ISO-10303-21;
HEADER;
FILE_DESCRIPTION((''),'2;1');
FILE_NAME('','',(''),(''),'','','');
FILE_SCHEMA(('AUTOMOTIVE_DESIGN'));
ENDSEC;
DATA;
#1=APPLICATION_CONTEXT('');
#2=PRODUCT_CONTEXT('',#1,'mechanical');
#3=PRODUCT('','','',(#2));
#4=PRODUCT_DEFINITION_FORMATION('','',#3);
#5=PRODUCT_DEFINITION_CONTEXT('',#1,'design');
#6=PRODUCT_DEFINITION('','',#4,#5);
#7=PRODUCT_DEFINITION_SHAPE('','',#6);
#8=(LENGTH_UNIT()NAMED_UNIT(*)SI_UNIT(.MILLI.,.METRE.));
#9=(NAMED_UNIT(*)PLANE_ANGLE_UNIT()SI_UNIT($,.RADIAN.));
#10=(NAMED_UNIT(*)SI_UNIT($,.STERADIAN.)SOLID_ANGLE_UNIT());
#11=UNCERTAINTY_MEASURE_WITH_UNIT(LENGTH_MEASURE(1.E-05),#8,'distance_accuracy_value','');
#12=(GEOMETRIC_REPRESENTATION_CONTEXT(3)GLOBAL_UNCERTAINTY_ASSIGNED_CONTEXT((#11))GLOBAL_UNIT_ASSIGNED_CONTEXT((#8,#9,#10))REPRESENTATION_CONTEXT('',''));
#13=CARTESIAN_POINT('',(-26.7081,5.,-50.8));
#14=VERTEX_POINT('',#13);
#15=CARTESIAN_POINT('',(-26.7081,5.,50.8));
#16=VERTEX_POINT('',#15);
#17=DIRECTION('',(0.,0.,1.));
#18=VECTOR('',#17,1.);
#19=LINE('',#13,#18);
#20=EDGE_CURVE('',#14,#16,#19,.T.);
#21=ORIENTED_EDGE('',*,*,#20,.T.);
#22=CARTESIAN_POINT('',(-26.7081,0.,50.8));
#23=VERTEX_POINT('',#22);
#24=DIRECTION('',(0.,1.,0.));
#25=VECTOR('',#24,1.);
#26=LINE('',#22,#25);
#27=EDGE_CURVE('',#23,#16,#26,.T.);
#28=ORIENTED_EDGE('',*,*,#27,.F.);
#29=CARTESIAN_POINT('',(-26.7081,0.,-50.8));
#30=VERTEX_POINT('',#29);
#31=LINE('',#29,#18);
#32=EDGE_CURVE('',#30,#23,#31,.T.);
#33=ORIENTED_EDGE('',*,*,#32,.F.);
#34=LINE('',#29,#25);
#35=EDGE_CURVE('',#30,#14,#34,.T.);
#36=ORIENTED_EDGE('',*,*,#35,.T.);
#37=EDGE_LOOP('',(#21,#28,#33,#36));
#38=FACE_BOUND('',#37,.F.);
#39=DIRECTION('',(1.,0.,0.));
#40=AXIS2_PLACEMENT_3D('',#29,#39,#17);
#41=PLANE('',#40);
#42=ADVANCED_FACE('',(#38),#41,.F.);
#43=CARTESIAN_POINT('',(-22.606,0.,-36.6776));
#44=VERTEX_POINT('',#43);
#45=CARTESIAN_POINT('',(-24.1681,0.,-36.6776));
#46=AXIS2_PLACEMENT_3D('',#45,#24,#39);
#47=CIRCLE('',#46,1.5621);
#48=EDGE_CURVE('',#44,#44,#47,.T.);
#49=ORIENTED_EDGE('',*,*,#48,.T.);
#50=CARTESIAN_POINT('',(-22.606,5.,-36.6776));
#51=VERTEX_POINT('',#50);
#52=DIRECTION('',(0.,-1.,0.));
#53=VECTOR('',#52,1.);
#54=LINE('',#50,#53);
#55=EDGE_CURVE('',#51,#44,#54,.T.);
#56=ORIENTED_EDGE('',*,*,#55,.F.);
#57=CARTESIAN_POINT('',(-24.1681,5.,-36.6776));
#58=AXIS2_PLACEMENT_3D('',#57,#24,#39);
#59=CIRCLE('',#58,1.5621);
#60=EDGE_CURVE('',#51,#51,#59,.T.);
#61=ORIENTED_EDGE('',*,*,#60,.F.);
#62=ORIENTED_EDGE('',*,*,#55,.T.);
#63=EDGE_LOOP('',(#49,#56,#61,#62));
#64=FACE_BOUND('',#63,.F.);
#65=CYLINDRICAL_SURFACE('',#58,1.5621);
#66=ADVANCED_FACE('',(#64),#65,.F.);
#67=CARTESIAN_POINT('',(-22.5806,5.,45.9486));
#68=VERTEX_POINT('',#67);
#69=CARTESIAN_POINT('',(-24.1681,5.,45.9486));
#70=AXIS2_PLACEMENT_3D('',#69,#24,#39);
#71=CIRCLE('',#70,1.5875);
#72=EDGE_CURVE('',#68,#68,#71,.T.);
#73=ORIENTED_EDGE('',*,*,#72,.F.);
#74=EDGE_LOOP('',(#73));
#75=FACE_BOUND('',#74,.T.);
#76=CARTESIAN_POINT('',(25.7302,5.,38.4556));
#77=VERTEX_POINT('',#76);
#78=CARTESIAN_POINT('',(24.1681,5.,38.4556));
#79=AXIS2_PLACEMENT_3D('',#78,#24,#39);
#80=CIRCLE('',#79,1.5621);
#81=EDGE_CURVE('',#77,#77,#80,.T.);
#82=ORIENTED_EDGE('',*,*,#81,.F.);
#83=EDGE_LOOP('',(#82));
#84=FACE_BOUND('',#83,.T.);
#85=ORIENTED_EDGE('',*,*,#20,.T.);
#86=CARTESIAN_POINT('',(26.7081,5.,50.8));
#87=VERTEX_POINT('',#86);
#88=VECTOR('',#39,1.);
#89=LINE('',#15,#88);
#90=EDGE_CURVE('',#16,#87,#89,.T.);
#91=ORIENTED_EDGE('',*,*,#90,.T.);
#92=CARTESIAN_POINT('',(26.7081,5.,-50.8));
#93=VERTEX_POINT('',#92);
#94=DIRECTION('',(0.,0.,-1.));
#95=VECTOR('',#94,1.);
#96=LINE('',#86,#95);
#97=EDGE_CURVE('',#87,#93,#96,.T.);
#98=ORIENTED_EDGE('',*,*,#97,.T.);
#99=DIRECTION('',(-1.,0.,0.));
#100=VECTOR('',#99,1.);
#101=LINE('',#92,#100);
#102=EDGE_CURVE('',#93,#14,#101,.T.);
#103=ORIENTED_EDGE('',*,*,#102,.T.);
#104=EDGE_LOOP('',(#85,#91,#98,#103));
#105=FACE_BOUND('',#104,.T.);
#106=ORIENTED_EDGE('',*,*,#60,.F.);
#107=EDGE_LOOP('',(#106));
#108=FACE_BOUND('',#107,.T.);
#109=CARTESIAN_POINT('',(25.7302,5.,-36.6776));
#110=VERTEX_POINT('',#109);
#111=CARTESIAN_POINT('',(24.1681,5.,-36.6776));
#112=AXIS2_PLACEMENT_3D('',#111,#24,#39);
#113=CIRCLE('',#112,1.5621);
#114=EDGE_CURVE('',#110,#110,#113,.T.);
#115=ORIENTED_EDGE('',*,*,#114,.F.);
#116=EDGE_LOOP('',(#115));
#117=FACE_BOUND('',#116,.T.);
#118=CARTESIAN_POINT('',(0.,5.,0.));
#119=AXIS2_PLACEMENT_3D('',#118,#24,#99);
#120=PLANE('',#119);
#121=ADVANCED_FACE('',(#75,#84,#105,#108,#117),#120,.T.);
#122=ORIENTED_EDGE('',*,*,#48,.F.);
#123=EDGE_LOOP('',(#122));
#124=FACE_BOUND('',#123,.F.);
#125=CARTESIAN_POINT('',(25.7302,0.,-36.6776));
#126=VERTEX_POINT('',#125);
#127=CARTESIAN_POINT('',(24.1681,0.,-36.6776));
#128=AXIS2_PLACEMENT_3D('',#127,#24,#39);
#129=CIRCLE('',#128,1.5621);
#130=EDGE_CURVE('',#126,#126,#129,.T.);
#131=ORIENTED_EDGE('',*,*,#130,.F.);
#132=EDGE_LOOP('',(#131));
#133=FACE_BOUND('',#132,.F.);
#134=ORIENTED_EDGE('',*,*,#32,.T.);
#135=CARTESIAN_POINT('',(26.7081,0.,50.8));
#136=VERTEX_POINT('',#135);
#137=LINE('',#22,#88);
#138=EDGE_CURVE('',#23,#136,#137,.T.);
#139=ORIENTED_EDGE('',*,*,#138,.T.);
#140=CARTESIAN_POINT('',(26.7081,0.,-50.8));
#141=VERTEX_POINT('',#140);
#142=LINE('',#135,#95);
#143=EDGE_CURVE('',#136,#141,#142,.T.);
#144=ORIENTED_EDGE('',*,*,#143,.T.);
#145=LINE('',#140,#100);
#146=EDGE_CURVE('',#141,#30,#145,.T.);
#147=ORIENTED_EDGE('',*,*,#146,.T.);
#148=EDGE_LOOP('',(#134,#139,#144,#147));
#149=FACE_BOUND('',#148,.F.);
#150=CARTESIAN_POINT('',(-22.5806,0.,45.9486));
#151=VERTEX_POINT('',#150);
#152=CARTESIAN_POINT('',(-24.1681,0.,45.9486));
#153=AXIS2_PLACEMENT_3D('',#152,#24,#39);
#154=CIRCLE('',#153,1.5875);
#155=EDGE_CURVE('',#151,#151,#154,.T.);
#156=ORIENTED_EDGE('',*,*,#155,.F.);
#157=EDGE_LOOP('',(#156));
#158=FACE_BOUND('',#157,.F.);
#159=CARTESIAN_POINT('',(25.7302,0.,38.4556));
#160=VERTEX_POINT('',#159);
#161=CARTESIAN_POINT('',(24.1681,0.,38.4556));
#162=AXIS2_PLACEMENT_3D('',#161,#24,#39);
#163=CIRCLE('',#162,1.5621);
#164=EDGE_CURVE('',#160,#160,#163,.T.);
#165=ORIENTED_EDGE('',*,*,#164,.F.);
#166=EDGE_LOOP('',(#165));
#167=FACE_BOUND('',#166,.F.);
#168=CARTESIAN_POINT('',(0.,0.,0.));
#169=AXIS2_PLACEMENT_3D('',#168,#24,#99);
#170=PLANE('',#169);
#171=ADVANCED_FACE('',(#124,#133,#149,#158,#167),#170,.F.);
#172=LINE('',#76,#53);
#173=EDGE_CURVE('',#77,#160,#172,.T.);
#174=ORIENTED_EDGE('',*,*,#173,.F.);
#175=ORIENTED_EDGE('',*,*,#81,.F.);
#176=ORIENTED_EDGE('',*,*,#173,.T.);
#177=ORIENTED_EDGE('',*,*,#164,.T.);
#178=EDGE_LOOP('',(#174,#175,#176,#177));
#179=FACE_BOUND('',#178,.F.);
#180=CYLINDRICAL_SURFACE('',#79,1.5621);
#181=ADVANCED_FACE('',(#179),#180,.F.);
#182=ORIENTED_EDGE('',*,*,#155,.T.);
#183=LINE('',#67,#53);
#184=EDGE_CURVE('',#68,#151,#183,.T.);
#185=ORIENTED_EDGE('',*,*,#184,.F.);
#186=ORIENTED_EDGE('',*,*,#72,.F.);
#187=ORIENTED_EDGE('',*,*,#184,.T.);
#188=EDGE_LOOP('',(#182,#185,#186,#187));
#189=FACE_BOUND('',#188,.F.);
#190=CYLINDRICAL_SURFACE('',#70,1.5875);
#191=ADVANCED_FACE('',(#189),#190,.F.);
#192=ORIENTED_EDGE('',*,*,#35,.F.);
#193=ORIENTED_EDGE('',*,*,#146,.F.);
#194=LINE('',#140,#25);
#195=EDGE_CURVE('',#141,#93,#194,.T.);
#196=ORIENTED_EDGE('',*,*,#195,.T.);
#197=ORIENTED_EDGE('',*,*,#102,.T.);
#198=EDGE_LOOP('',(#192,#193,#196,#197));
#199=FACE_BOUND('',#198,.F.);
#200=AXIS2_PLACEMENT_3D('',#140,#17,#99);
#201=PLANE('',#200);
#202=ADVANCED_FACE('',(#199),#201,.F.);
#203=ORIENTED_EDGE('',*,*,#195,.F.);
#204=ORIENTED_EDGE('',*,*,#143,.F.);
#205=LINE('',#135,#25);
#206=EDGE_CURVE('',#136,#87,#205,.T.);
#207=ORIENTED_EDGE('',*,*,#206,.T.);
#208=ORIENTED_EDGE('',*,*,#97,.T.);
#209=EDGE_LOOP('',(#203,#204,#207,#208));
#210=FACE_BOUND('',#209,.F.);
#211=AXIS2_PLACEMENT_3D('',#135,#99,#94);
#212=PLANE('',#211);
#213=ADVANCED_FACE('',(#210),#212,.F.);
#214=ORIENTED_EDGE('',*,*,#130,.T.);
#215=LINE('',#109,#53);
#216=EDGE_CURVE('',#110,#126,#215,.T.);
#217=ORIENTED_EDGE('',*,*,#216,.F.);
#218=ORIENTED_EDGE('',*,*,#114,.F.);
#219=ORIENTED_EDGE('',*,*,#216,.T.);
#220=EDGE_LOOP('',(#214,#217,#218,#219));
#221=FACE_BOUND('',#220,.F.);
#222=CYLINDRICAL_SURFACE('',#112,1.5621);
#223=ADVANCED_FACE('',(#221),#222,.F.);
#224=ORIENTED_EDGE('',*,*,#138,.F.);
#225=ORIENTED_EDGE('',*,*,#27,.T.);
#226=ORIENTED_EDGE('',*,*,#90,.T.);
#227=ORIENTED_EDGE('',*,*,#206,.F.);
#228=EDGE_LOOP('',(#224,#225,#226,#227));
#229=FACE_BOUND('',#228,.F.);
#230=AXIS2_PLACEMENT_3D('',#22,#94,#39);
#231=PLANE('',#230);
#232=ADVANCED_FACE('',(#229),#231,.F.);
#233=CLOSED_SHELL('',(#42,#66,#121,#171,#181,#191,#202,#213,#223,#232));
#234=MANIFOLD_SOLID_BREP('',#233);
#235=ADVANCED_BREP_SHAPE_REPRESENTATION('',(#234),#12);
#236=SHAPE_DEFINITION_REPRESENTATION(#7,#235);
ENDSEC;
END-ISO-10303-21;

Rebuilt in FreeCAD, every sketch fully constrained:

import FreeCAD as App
import Part
import Sketcher
from FreeCAD import Vector
Q = App.Units.Quantity


def add_polygon(sketch, points):
    """Adds a closed chain of lines whose ends are joined by coincident constraints."""
    first, n = sketch.GeometryCount, len(points)
    for a, b in zip(points, points[1:] + points[:1]):
        sketch.addGeometry(Part.LineSegment(App.Vector(*a, 0), App.Vector(*b, 0)), False)
    for i in range(n):
        sketch.addConstraint(Sketcher.Constraint("Coincident", first + i, 2, first + (i + 1) % n, 1))

doc = App.newDocument("Part")
body = doc.addObject("PartDesign::Body", "Body")

# Sketch on XZ plane
sketch1 = body.newObject("Sketcher::SketchObject", "Sketch")
sketch1.AttachmentSupport = (doc.getObject("XZ_Plane"), [""])
sketch1.MapMode = "FlatFace"
add_polygon(sketch1, [(-26.7081, -50.8), (-26.7081, 50.8), (26.7081, 50.8), (26.7081, -50.8)])  # lines 0-3
sketch1.addConstraint([
    Sketcher.Constraint("Vertical", 0),
    Sketcher.Constraint("Horizontal", 1),
    Sketcher.Constraint("Vertical", 2),
    Sketcher.Constraint("Horizontal", 3),
    Sketcher.Constraint("Symmetric", 0, 2, 2, 2, -1, 1),
    Sketcher.Constraint("DistanceY", 0, 1, 0, 2, Q("4 in")),
    Sketcher.Constraint("DistanceX", 1, 1, 1, 2, Q("2.103 in")),
])
pad1 = body.newObject("PartDesign::Pad", "Pad")
pad1.Profile = sketch1
pad1.Length = 5
pad1.Reversed = True

# Sketch on XZ plane
sketch2 = body.newObject("Sketcher::SketchObject", "Sketch001")
sketch2.AttachmentSupport = (doc.getObject("XZ_Plane"), [""])
sketch2.MapMode = "FlatFace"
sketch2.AttachmentOffset = App.Placement(Vector(0, 0, -5), App.Rotation())
sketch2.addGeometry([
    Part.Circle(Vector(-24.1681, 45.9486, 0), Vector(0, 0, 1), 1.5875),
    Part.Circle(Vector(24.1681, 38.4556, 0), Vector(0, 0, 1), 1.5621),
    Part.Circle(Vector(-24.1681, -36.6776, 0), Vector(0, 0, 1), 1.5621),
    Part.Circle(Vector(24.1681, -36.6776, 0), Vector(0, 0, 1), 1.5621),
], False)
sketch2.addConstraint([
    Sketcher.Constraint("Equal", 1, 2),
    Sketcher.Constraint("Equal", 2, 3),
    Sketcher.Constraint("Symmetric", 2, 3, 3, 3, -2),
    Sketcher.Constraint("Vertical", 0, 3, 2, 3),
    Sketcher.Constraint("Vertical", 1, 3, 3, 3),
    Sketcher.Constraint("Diameter", 0, Q("0.125 in")),
    Sketcher.Constraint("Diameter", 1, Q("0.123 in")),
    Sketcher.Constraint("DistanceY", 2, 3, 1, 3, Q("2.958 in")),
    Sketcher.Constraint("DistanceY", -1, 1, 0, 3, Q("1.809 in")),
    Sketcher.Constraint("DistanceY", -1, 1, 1, 3, Q("1.514 in")),
    Sketcher.Constraint("DistanceX", 0, 3, 1, 3, Q("1.903 in")),
])
pocket1 = body.newObject("PartDesign::Pocket", "Pocket")
pocket1.Profile = sketch2
pocket1.Type = "ThroughAll"
pocket1.Reversed = True

doc.recompute()
